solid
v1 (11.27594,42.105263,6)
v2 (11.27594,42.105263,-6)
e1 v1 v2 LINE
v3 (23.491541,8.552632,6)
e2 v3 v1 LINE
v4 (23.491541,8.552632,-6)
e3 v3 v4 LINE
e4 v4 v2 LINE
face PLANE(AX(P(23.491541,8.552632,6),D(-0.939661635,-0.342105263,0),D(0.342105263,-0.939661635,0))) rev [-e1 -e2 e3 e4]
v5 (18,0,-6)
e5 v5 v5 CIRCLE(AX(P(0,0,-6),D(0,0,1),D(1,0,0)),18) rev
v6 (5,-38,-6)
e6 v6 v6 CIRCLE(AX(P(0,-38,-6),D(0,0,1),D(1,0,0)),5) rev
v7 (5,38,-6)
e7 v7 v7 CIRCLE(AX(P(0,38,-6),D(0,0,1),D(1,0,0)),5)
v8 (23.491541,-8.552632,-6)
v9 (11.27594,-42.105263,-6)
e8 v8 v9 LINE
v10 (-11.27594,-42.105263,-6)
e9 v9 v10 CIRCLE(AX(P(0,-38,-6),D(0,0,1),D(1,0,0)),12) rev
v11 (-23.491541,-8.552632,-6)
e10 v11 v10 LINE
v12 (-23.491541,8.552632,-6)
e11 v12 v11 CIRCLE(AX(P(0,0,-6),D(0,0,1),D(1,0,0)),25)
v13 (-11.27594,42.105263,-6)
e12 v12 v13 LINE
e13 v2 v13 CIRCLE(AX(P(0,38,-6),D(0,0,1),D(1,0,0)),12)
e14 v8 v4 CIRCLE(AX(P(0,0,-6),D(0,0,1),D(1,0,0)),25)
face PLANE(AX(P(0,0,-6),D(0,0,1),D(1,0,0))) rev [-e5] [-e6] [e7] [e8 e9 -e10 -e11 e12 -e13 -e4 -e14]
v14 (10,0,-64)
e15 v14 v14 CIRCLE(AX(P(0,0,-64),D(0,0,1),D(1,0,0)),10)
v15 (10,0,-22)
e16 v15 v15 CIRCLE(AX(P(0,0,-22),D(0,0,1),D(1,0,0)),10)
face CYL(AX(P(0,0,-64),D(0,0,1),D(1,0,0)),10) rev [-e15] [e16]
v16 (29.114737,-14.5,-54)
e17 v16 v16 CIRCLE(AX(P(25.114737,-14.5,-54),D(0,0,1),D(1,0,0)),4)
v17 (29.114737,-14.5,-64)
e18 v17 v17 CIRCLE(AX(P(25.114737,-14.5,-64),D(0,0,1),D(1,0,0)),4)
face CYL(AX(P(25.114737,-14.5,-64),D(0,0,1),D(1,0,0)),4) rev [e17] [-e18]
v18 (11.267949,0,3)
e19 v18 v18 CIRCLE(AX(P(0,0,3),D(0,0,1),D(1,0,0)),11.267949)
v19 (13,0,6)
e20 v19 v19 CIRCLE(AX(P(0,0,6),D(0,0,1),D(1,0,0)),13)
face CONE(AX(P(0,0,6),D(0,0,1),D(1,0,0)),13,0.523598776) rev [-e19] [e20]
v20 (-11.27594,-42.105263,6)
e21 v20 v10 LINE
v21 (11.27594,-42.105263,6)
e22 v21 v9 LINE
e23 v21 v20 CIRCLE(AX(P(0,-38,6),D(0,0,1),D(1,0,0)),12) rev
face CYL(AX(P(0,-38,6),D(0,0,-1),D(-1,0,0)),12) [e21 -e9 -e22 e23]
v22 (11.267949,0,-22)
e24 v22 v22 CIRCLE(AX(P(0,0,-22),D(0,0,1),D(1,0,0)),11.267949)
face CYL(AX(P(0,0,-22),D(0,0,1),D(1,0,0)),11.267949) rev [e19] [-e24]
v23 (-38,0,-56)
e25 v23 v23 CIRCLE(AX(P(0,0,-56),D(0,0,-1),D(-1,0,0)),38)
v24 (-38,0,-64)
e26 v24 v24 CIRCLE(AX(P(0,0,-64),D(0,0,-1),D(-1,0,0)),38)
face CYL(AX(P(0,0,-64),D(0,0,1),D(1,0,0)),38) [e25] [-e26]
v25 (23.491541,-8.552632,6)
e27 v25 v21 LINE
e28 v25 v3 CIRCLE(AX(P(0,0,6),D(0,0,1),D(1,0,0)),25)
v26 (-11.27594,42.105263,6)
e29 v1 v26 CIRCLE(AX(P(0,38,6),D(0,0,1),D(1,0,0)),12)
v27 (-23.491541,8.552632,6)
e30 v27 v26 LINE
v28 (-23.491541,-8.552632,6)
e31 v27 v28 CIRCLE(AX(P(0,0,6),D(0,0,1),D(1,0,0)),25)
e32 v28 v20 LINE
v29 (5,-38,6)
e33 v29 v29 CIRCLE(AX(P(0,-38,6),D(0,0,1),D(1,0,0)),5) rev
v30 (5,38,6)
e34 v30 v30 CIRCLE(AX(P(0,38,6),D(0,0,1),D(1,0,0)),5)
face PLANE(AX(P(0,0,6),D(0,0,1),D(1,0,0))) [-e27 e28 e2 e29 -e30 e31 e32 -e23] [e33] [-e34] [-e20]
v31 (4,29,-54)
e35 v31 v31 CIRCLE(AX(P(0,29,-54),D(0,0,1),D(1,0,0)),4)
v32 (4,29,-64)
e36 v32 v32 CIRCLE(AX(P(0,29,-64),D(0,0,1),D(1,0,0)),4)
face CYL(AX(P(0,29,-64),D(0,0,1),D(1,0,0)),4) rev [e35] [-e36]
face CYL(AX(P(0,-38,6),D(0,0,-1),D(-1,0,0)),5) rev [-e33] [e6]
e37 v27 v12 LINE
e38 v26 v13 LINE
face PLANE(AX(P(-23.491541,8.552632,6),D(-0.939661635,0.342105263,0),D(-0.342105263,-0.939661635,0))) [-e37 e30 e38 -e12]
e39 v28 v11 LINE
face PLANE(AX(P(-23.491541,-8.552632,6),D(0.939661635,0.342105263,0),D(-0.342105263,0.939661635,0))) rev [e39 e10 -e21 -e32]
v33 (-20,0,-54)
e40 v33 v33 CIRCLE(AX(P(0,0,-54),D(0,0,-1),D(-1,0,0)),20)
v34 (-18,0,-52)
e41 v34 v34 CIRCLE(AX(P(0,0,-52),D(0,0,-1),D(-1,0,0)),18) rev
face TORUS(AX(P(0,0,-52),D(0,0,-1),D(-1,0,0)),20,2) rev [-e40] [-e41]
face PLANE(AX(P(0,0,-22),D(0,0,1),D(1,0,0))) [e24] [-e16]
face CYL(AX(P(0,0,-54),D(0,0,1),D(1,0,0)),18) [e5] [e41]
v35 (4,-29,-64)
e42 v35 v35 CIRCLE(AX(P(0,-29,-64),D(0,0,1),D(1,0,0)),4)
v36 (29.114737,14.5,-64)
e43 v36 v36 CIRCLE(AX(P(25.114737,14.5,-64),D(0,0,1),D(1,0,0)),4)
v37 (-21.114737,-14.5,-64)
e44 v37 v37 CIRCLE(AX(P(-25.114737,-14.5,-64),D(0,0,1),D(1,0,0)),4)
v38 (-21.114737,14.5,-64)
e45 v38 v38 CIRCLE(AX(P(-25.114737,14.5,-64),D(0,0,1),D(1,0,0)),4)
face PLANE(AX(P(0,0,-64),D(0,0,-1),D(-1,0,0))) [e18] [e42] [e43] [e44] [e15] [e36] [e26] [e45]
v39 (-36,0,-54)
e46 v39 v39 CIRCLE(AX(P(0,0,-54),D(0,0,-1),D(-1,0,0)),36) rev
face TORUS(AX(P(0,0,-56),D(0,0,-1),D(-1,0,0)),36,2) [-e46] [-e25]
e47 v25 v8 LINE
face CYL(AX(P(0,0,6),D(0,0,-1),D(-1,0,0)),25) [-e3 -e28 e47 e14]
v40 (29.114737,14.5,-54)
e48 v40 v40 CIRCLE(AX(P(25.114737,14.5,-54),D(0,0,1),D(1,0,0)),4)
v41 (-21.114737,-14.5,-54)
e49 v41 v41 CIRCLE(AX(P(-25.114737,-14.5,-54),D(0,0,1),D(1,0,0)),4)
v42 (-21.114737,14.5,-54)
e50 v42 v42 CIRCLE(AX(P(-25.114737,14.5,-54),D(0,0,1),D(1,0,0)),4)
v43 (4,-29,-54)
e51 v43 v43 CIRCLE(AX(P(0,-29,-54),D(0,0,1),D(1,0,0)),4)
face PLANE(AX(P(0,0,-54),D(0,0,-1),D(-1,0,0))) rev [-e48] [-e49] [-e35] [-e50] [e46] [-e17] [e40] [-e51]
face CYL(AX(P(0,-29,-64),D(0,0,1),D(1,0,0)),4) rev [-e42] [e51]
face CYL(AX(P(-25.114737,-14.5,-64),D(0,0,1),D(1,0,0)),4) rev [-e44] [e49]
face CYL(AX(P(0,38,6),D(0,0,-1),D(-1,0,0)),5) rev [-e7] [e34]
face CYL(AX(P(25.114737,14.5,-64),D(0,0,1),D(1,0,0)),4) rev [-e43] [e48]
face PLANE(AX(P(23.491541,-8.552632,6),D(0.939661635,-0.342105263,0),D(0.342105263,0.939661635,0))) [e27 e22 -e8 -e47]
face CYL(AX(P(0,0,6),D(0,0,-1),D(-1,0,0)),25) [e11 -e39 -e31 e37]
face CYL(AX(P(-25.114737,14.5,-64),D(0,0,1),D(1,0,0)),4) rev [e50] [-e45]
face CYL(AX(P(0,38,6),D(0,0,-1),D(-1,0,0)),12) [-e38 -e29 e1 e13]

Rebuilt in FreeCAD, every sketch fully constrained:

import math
import FreeCAD as App
import Part
import Sketcher

V = App.Vector


def edges_at(feature, points):
    """Names of the edges that pass closest to the given points."""
    edges = feature.Shape.Edges
    near = lambda p: min(range(len(edges)), key=lambda i: edges[i].distToShape(Part.Vertex(*p))[0])
    return sorted({f"Edge{near(p) + 1}" for p in points})


def faces_at(feature, points):
    """Names of the faces that lie closest to the given points."""
    faces = feature.Shape.Faces
    near = lambda p: min(range(len(faces)), key=lambda i: faces[i].distToShape(Part.Vertex(*p))[0])
    return sorted({f"Face{near(p) + 1}" for p in points})

doc = App.newDocument("Part")
body = doc.addObject("PartDesign::Body", "Body")

# Sketch on XY plane
sketch1 = body.newObject("Sketcher::SketchObject", "Sketch")
sketch1.AttachmentSupport = (doc.getObject("XY_Plane"), [""])
sketch1.MapMode = "FlatFace"
sketch1.addGeometry([
    Part.LineSegment(V(11.27594, -42.105263, 0), V(23.491541, -8.552632, 0)),  # 0
    Part.ArcOfCircle(Part.Circle(V(0, 0, 0), V(0, 0, 1), 25), math.radians(-20.00519), math.radians(20.00519)),  # 1
    Part.LineSegment(V(23.491541, 8.552632, 0), V(11.27594, 42.105263, 0)),  # 2
    Part.ArcOfCircle(Part.Circle(V(0, 38, 0), V(0, 0, 1), 12), math.radians(20.00519), math.radians(159.99481)),  # 3
    Part.LineSegment(V(-11.27594, 42.105263, 0), V(-23.491541, 8.552632, 0)),  # 4
    Part.ArcOfCircle(Part.Circle(V(0, 0, 0), V(0, 0, 1), 25), math.radians(159.99481), math.radians(200.00519)),  # 5
    Part.LineSegment(V(-23.491541, -8.552632, 0), V(-11.27594, -42.105263, 0)),  # 6
    Part.ArcOfCircle(Part.Circle(V(0, -38, 0), V(0, 0, 1), 12), math.radians(-159.99481), math.radians(-20.00519)),  # 7
    Part.Circle(V(0, -38, 0), V(0, 0, 1), 5),  # 8
    Part.Circle(V(0, 38, 0), V(0, 0, 1), 5),  # 9
], False)
sketch1.addConstraint([
    Sketcher.Constraint("Tangent", 0, 2, 1, 1),
    Sketcher.Constraint("Tangent", 1, 2, 2, 1),
    Sketcher.Constraint("Tangent", 2, 2, 3, 1),
    Sketcher.Constraint("Tangent", 3, 2, 4, 1),
    Sketcher.Constraint("Tangent", 4, 2, 5, 1),
    Sketcher.Constraint("Tangent", 5, 2, 6, 1),
    Sketcher.Constraint("Tangent", 6, 2, 7, 1),
    Sketcher.Constraint("Tangent", 7, 2, 0, 1),
    Sketcher.Constraint("Coincident", 1, 3, -1, 1),
    Sketcher.Constraint("Coincident", 5, 3, -1, 1),
    Sketcher.Constraint("Coincident", 8, 3, 7, 3),
    Sketcher.Constraint("Coincident", 9, 3, 3, 3),
    Sketcher.Constraint("Equal", 1, 5),
    Sketcher.Constraint("Equal", 3, 7),
    Sketcher.Constraint("Equal", 8, 9),
    Sketcher.Constraint("Symmetric", 3, 3, 7, 3, -1, 1),
    Sketcher.Constraint("PointOnObject", 3, 3, -2),
    Sketcher.Constraint("Diameter", 8, 10.0),
    Sketcher.Constraint("Radius", 1, 25.0),
    Sketcher.Constraint("Radius", 3, 12.0),
    Sketcher.Constraint("DistanceY", -1, 1, 3, 3, 38.0),
])
pad1 = body.newObject("PartDesign::Pad", "Pad")
pad1.Profile = sketch1
pad1.Length = 12
pad1.Midplane = True
body2 = doc.addObject("PartDesign::Body", "Body001")

# Sketch on XY plane
sketch2 = body2.newObject("Sketcher::SketchObject", "Sketch001")
sketch2.AttachmentSupport = (doc.getObject("XY_Plane001"), [""])
sketch2.MapMode = "FlatFace"
sketch2.AttachmentOffset = App.Placement(V(0, 0, 6), App.Rotation())
sketch2.addGeometry(Part.Circle(V(0, 0, 0), V(0, 0, 1), 13), False)
sketch2.addConstraint([
    Sketcher.Constraint("Coincident", 0, 3, -1, 1),
    Sketcher.Constraint("Diameter", 0, 26.0),
])
pad2 = body2.newObject("PartDesign::Pad", "Pad001")
pad2.Profile = sketch2
pad2.Length = 3
pad2.Reversed = True
doc.recompute()

datumplane = body2.newObject("PartDesign::Plane", "DatumPlane")
datumplane.AttachmentSupport = (doc.getObject("XY_Plane001"), [""])
datumplane.MapMode = "FlatFace"
datumplane.AttachmentOffset = App.Placement(V(0, 0, 6), App.Rotation())
draft = body2.newObject("PartDesign::Draft", "Draft")
draft.Base = (pad2, faces_at(pad2, [(-13, 0, 4.5)]))
draft.NeutralPlane = (datumplane, [""])
draft.Angle = 30
draft.Reversed = True
doc.recompute()

boolean = body.newObject("PartDesign::Boolean", "Boolean")
boolean.Type = "Cut"
boolean.addObjects([body2])

# Sketch on XY plane
sketch3 = body.newObject("Sketcher::SketchObject", "Sketch002")
sketch3.AttachmentSupport = (doc.getObject("XY_Plane"), [""])
sketch3.MapMode = "FlatFace"
sketch3.AttachmentOffset = App.Placement(V(0, 0, -6), App.Rotation())
sketch3.addGeometry(Part.Circle(V(0, 0, 0), V(0, 0, 1), 18), False)
sketch3.addConstraint([
    Sketcher.Constraint("Coincident", 0, 3, -1, 1),
    Sketcher.Constraint("Diameter", 0, 36.0),
])
pad3 = body.newObject("PartDesign::Pad", "Pad002")
pad3.Profile = sketch3
pad3.Length = 48
pad3.Reversed = True

# Sketch on XY plane
sketch4 = body.newObject("Sketcher::SketchObject", "Sketch003")
sketch4.AttachmentSupport = (doc.getObject("XY_Plane"), [""])
sketch4.MapMode = "FlatFace"
sketch4.AttachmentOffset = App.Placement(V(0, 0, -54), App.Rotation())
sketch4.addGeometry(Part.Circle(V(0, 0, 0), V(0, 0, 1), 38), False)
sketch4.addConstraint([
    Sketcher.Constraint("Coincident", 0, 3, -1, 1),
    Sketcher.Constraint("Diameter", 0, 76.0),
])
pad4 = body.newObject("PartDesign::Pad", "Pad003")
pad4.Profile = sketch4
pad4.Length = 10
pad4.Reversed = True

# Sketch on XY plane
sketch5 = body.newObject("Sketcher::SketchObject", "Sketch004")
sketch5.AttachmentSupport = (doc.getObject("XY_Plane"), [""])
sketch5.MapMode = "FlatFace"
sketch5.AttachmentOffset = App.Placement(V(0, 0, 3), App.Rotation())
sketch5.addGeometry(Part.Circle(V(0, 0, 0), V(0, 0, 1), 11.267949), False)
sketch5.addConstraint([
    Sketcher.Constraint("Coincident", 0, 3, -1, 1),
    Sketcher.Constraint("Diameter", 0, 22.535898),
])
pocket1 = body.newObject("PartDesign::Pocket", "Pocket")
pocket1.Profile = sketch5
pocket1.Length = 25

# Sketch on XY plane
sketch6 = body.newObject("Sketcher::SketchObject", "Sketch005")
sketch6.AttachmentSupport = (doc.getObject("XY_Plane"), [""])
sketch6.MapMode = "FlatFace"
sketch6.AttachmentOffset = App.Placement(V(0, 0, -22), App.Rotation())
sketch6.addGeometry(Part.Circle(V(0, 0, 0), V(0, 0, 1), 10), False)
sketch6.addConstraint([
    Sketcher.Constraint("Coincident", 0, 3, -1, 1),
    Sketcher.Constraint("Diameter", 0, 20.0),
])
pocket2 = body.newObject("PartDesign::Pocket", "Pocket001")
pocket2.Profile = sketch6
pocket2.Type = "ThroughAll"

# Sketch on XY plane
sketch7 = body.newObject("Sketcher::SketchObject", "Sketch006")
sketch7.AttachmentSupport = (doc.getObject("XY_Plane"), [""])
sketch7.MapMode = "FlatFace"
sketch7.AttachmentOffset = App.Placement(V(0, 0, -54), App.Rotation())
sketch7.addGeometry([
    Part.Circle(V(0, 29, 0), V(0, 0, 1), 4),  # 0
    Part.Circle(V(25.114737, 14.5, 0), V(0, 0, 1), 4),  # 1
    Part.Circle(V(25.114737, -14.5, 0), V(0, 0, 1), 4),  # 2
    Part.Circle(V(0, -29, 0), V(0, 0, 1), 4),  # 3
    Part.Circle(V(-25.114737, -14.5, 0), V(0, 0, 1), 4),  # 4
    Part.Circle(V(-25.114737, 14.5, 0), V(0, 0, 1), 4),  # 5
], False)
sketch7.addConstraint([
    Sketcher.Constraint("Equal", 0, 1),
    Sketcher.Constraint("Equal", 1, 2),
    Sketcher.Constraint("Equal", 2, 3),
    Sketcher.Constraint("Equal", 3, 4),
    Sketcher.Constraint("Equal", 4, 5),
    Sketcher.Constraint("Symmetric", 0, 3, 3, 3, -1, 1),
    Sketcher.Constraint("Symmetric", 1, 3, 4, 3, -1, 1),
    Sketcher.Constraint("Symmetric", 2, 3, 5, 3, -1, 1),
    Sketcher.Constraint("Symmetric", 2, 3, 4, 3, -2),
    Sketcher.Constraint("PointOnObject", 0, 3, -2),
    Sketcher.Constraint("Diameter", 0, 8.0),
    Sketcher.Constraint("DistanceY", -1, 1, 0, 3, 29.0),
    Sketcher.Constraint("DistanceY", 2, 3, 1, 3, 29.0),
    Sketcher.Constraint("DistanceX", -1, 1, 1, 3, 25.114737),
])
pocket3 = body.newObject("PartDesign::Pocket", "Pocket002")
pocket3.Profile = sketch7
pocket3.Type = "ThroughAll"
doc.recompute()

fillet = body.newObject("PartDesign::Fillet", "Fillet")
fillet.Base = (pocket3, edges_at(pocket3, [(-18, 0, -54), (38, 0, -54)]))
fillet.Radius = 2

doc.recompute()
